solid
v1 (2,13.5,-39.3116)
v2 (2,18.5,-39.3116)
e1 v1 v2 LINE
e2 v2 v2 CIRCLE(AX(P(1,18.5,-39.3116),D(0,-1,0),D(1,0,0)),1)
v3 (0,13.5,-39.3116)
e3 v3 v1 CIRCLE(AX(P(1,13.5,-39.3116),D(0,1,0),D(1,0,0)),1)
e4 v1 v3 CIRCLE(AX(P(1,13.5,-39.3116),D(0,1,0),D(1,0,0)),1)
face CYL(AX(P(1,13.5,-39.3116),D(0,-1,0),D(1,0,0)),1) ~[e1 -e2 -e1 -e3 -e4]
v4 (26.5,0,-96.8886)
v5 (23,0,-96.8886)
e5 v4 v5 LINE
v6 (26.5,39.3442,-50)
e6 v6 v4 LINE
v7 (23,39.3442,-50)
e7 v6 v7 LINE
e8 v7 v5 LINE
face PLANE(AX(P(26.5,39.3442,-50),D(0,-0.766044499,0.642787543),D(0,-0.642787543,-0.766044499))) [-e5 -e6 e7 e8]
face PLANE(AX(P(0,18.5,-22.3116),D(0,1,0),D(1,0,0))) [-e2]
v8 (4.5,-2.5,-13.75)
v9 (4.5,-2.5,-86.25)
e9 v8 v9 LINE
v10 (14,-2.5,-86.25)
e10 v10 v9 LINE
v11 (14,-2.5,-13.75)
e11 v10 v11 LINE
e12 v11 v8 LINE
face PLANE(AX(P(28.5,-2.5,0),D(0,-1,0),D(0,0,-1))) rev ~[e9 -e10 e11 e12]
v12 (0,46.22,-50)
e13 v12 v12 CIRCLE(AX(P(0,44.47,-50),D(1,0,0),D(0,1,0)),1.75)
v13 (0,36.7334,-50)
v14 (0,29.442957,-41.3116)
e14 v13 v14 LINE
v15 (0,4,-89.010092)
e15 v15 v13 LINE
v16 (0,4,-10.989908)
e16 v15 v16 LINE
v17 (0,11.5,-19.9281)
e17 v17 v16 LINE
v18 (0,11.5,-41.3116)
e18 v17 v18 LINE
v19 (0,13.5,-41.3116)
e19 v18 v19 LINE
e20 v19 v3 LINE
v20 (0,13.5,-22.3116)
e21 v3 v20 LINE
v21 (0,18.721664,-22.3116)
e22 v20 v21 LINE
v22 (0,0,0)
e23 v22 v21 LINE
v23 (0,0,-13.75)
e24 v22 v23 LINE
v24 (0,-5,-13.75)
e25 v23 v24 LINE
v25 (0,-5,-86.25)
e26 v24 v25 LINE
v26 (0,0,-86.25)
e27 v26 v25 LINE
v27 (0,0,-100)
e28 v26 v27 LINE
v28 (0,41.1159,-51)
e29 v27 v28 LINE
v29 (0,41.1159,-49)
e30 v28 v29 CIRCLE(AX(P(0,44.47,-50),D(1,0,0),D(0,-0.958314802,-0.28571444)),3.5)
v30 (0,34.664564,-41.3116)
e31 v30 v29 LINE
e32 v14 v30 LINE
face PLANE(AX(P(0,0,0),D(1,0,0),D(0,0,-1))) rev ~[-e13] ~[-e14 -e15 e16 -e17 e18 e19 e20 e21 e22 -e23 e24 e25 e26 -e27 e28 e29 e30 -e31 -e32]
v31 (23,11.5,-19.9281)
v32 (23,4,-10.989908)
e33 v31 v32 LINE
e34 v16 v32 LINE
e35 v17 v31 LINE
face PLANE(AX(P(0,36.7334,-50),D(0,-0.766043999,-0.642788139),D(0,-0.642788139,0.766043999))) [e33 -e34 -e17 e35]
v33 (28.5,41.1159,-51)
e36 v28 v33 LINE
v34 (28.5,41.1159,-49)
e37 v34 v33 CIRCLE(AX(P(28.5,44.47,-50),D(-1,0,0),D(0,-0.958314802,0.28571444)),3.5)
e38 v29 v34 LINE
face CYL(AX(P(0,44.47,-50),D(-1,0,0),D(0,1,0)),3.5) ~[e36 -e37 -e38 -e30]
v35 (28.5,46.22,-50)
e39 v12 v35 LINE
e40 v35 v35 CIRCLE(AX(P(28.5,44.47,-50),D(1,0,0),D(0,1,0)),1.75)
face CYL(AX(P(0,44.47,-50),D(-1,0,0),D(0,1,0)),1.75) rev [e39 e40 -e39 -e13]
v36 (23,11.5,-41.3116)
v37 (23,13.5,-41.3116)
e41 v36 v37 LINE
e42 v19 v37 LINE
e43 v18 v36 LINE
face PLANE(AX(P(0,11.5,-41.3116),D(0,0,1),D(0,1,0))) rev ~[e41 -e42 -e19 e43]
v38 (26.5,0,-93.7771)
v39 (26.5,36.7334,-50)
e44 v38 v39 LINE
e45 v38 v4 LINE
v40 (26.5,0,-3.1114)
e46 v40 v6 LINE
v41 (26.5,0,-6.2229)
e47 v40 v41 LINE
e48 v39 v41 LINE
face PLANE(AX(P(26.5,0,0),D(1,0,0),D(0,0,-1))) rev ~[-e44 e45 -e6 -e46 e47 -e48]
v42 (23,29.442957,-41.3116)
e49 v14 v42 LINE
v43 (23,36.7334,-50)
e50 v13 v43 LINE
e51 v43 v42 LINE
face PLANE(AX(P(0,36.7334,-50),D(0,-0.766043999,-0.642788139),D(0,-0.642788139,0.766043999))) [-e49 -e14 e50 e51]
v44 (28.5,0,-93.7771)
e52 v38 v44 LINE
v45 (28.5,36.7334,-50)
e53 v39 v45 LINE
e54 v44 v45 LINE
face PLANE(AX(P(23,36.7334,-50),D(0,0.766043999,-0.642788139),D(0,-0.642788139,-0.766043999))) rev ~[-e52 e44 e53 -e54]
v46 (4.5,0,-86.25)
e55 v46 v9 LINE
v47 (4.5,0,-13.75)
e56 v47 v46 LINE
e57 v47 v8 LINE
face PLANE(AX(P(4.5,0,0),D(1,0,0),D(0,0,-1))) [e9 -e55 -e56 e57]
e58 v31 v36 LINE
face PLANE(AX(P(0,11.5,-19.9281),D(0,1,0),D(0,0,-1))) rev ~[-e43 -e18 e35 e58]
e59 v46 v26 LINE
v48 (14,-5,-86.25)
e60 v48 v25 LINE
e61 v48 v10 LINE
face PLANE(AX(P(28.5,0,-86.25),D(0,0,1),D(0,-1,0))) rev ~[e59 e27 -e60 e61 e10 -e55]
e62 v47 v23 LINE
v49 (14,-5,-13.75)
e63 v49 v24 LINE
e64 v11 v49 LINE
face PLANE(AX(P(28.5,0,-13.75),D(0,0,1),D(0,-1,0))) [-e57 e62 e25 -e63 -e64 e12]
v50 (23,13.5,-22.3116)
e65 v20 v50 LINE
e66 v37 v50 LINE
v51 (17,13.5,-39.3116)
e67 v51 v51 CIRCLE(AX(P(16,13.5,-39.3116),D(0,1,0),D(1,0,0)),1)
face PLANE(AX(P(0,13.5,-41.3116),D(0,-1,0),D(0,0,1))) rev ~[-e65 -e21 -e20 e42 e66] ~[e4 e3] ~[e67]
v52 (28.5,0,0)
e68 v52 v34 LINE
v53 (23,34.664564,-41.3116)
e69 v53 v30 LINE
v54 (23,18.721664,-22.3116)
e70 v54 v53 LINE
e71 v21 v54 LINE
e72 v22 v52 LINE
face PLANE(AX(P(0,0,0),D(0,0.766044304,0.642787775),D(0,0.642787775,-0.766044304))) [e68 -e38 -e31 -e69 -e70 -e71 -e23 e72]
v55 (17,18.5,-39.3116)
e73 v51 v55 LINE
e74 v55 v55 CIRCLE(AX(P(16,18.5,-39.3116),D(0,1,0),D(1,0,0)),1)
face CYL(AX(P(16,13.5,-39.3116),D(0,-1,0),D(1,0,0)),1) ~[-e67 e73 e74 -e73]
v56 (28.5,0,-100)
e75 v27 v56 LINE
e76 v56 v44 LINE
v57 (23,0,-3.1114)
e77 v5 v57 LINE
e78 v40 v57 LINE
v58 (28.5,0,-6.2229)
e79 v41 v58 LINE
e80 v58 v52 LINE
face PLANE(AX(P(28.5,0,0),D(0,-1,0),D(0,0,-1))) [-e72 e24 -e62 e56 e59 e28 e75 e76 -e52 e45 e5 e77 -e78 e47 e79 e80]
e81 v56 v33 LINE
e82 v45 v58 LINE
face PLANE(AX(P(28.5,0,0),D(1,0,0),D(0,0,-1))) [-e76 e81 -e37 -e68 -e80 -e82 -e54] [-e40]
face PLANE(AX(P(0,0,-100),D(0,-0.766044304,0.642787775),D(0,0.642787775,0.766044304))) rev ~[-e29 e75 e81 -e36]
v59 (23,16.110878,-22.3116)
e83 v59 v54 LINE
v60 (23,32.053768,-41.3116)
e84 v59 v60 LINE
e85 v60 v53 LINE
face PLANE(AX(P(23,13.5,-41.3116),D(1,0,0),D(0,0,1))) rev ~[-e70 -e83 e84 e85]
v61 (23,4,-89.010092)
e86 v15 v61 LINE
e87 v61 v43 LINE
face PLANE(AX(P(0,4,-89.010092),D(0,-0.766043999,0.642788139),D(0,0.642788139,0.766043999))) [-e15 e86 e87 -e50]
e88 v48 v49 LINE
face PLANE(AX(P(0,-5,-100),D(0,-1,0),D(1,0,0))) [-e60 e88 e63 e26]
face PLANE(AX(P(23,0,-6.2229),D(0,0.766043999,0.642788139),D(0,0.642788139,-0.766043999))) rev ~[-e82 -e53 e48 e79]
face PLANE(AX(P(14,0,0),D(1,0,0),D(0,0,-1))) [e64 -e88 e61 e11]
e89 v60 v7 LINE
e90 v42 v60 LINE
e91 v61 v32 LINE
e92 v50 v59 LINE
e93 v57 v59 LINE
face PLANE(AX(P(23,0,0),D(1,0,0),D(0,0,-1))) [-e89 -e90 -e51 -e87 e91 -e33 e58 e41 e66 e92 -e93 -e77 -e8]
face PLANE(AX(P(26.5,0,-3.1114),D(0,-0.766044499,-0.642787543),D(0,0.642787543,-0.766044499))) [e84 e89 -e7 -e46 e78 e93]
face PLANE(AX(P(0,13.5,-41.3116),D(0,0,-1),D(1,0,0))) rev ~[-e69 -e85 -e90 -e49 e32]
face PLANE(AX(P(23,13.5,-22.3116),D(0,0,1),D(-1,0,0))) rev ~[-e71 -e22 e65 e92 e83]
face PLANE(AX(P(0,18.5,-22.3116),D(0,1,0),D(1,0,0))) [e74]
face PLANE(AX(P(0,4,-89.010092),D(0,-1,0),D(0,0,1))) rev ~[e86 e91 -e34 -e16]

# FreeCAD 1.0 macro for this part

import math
import FreeCAD as App
import Part
import Sketcher
from FreeCAD import Vector
Q = App.Units.Quantity


def add_polygon(sketch, points):
    """Adds a closed chain of lines whose ends are joined by coincident constraints."""
    first, n = sketch.GeometryCount, len(points)
    for a, b in zip(points, points[1:] + points[:1]):
        sketch.addGeometry(Part.LineSegment(App.Vector(*a, 0), App.Vector(*b, 0)), False)
    for i in range(n):
        sketch.addConstraint(Sketcher.Constraint("Coincident", first + i, 2, first + (i + 1) % n, 1))

doc = App.newDocument("Part")
body = doc.addObject("PartDesign::Body", "Body")

# Sketch on YZ plane
sketch1 = body.newObject("Sketcher::SketchObject", "Sketch")
sketch1.AttachmentSupport = (doc.getObject("YZ_Plane"), [""])
sketch1.MapMode = "FlatFace"
sketch1.addGeometry([
    Part.LineSegment(Vector(41.1, -49, 0), Vector(0, 0, 0)),  # 0
    Part.LineSegment(Vector(0, 0, 0), Vector(0, -100, 0)),  # 1
    Part.LineSegment(Vector(0, -100, 0), Vector(41.1, -51, 0)),  # 2
    Part.ArcOfCircle(Part.Circle(Vector(44.5, -50, 0), Vector(0, 0, 1), 3.5), math.radians(-163), math.radians(163)),  # 3
    Part.Circle(Vector(44.5, -50, 0), Vector(0, 0, 1), 1.8),  # 4
], False)
sketch1.addConstraint([
    Sketcher.Constraint("Coincident", 0, 2, 1, 1),
    Sketcher.Constraint("Coincident", 1, 2, 2, 1),
    Sketcher.Constraint("Coincident", 2, 2, 3, 1),
    Sketcher.Constraint("Coincident", 3, 2, 0, 1),
    Sketcher.Constraint("Vertical", 1),
    Sketcher.Constraint("Coincident", 0, 2, -1, 1),
    Sketcher.Constraint("Coincident", 4, 3, 3, 3),
    Sketcher.Constraint("Vertical", 2, 2, 3, 2),
    Sketcher.Constraint("Equal", 0, 2),
    Sketcher.Constraint("Diameter", 4, Q("3.5 mm")),
    Sketcher.Constraint("Radius", 3, Q("3.5 mm")),
    Sketcher.Constraint("DistanceY", 1, 2, 1, 1, Q("100 mm")),
    Sketcher.Constraint("DistanceY", 2, 2, 3, 2, Q("2 mm")),
    Sketcher.Constraint("Angle", 0, Q("130 deg")),
])
pad1 = body.newObject("PartDesign::Pad", "Pad")
pad1.Profile = sketch1
pad1.Length = 28.5

# Sketch on XZ plane
sketch2 = body.newObject("Sketcher::SketchObject", "Sketch001")
sketch2.AttachmentSupport = (doc.getObject("XZ_Plane"), [""])
sketch2.MapMode = "FlatFace"
add_polygon(sketch2, [(28, 0), (0, 0), (0, -100), (28, -100)])  # lines 0-3
sketch2.addConstraint([
    Sketcher.Constraint("Horizontal", 0),
    Sketcher.Constraint("Vertical", 1),
    Sketcher.Constraint("Horizontal", 2),
    Sketcher.Constraint("Vertical", 3),
    Sketcher.Constraint("Coincident", 0, 2, -1, 1),
    Sketcher.Constraint("DistanceY", 1, 2, 1, 1, Q("100 mm")),
    Sketcher.Constraint("DistanceX", 0, 2, 0, 1, Q("28.5 mm")),
])
pad2 = body.newObject("PartDesign::Pad", "Pad001")
pad2.Profile = sketch2
pad2.Length = 5

# Sketch on YZ plane
sketch3 = body.newObject("Sketcher::SketchObject", "Sketch002")
sketch3.AttachmentSupport = (doc.getObject("YZ_Plane"), [""])
sketch3.MapMode = "FlatFace"
sketch3.AttachmentOffset = App.Placement(Vector(0, 0, 28.5), App.Rotation())
add_polygon(sketch3, [(-2.5, -100), (0, -100), (0, 0), (-2.5, 0)])  # lines 0-3
sketch3.addConstraint([
    Sketcher.Constraint("Horizontal", 0),
    Sketcher.Constraint("Vertical", 1),
    Sketcher.Constraint("Horizontal", 2),
    Sketcher.Constraint("Vertical", 3),
    Sketcher.Constraint("Coincident", 1, 2, -1, 1),
    Sketcher.Constraint("DistanceY", 1, 1, 1, 2, Q("100 mm")),
    Sketcher.Constraint("DistanceX", 0, 1, 0, 2, Q("2.5 mm")),
])
pocket1 = body.newObject("PartDesign::Pocket", "Pocket")
pocket1.Profile = sketch3
pocket1.Length = 24

# Sketch on YZ plane
sketch4 = body.newObject("Sketcher::SketchObject", "Sketch003")
sketch4.AttachmentSupport = (doc.getObject("YZ_Plane"), [""])
sketch4.MapMode = "FlatFace"
sketch4.AttachmentOffset = App.Placement(Vector(0, 0, 28.5), App.Rotation())
add_polygon(sketch4, [(0, -14), (0, 0), (-5, 0), (-5, -14)])  # lines 0-3
add_polygon(sketch4, [(0, -100), (0, -86), (-5, -86), (-5, -100)])  # lines 4-7
sketch4.addConstraint([
    Sketcher.Constraint("Vertical", 0),
    Sketcher.Constraint("Horizontal", 1),
    Sketcher.Constraint("Vertical", 2),
    Sketcher.Constraint("Horizontal", 3),
    Sketcher.Constraint("Vertical", 4),
    Sketcher.Constraint("Horizontal", 5),
    Sketcher.Constraint("Vertical", 6),
    Sketcher.Constraint("Horizontal", 7),
    Sketcher.Constraint("Coincident", 0, 2, -1, 1),
    Sketcher.Constraint("PointOnObject", 4, 2, -2),
    Sketcher.Constraint("Vertical", 2, 2, 5, 2),
    Sketcher.Constraint("Equal", 2, 4),
    Sketcher.Constraint("DistanceY", 4, 2, 3, 2, Q("72.5 mm")),
    Sketcher.Constraint("DistanceX", 1, 2, 1, 1, Q("5 mm")),
    Sketcher.Constraint("DistanceY", 6, 2, -1, 1, Q("100 mm")),
])
pocket2 = body.newObject("PartDesign::Pocket", "Pocket001")
pocket2.Profile = sketch4
pocket2.Type = "ThroughAll"

# Sketch on YZ plane
sketch5 = body.newObject("Sketcher::SketchObject", "Sketch004")
sketch5.AttachmentSupport = (doc.getObject("YZ_Plane"), [""])
sketch5.MapMode = "FlatFace"
sketch5.AttachmentOffset = App.Placement(Vector(0, 0, 28.5), App.Rotation())
add_polygon(sketch5, [(-5, -13.8), (-5, -86.2), (-2.5, -86.2), (-2.5, -13.8)])  # lines 0-3
sketch5.addConstraint([
    Sketcher.Constraint("Vertical", 0),
    Sketcher.Constraint("Horizontal", 1),
    Sketcher.Constraint("Vertical", 2),
    Sketcher.Constraint("Horizontal", 3),
    Sketcher.Constraint("DistanceX", 1, 1, 1, 2, Q("2.5 mm")),
    Sketcher.Constraint("DistanceY", 0, 2, 0, 1, Q("72.5 mm")),
    Sketcher.Constraint("DistanceX", 0, 2, -1, 1, Q("5 mm")),
    Sketcher.Constraint("DistanceY", 0, 2, -1, 1, Q("86.25 mm")),
])
pocket3 = body.newObject("PartDesign::Pocket", "Pocket002")
pocket3.Profile = sketch5
pocket3.Length = 14.5

# Sketch on YZ plane
sketch6 = body.newObject("Sketcher::SketchObject", "Sketch005")
sketch6.AttachmentSupport = (doc.getObject("YZ_Plane"), [""])
sketch6.MapMode = "FlatFace"
sketch6.AttachmentOffset = App.Placement(Vector(0, 0, 26.5), App.Rotation())
add_polygon(sketch6, [(0, -3), (0, -97), (39, -50)])  # lines 0-2
sketch6.addConstraint([
    Sketcher.Constraint("Vertical", 0),
    Sketcher.Constraint("PointOnObject", 0, 2, -2),
    Sketcher.Constraint("Equal", 1, 2),
    Sketcher.Constraint("Angle", 1, Q("50 deg")),
    Sketcher.Constraint("DistanceY", 1, 2, -1, 1, Q("50 mm")),
    Sketcher.Constraint("DistanceY", 0, 2, 0, 1, Q("93.7772 mm")),
])
pocket4 = body.newObject("PartDesign::Pocket", "Pocket003")
pocket4.Profile = sketch6
pocket4.Length = 3.5

# Sketch on YZ plane
sketch7 = body.newObject("Sketcher::SketchObject", "Sketch006")
sketch7.AttachmentSupport = (doc.getObject("YZ_Plane"), [""])
sketch7.MapMode = "FlatFace"
sketch7.AttachmentOffset = App.Placement(Vector(0, 0, 23), App.Rotation())
add_polygon(sketch7, [(0, -6), (0, -94), (37, -50)])  # lines 0-2
sketch7.addConstraint([
    Sketcher.Constraint("Vertical", 0),
    Sketcher.Constraint("PointOnObject", 0, 2, -2),
    Sketcher.Constraint("Equal", 1, 2),
    Sketcher.Constraint("Angle", 1, Q("50 deg")),
    Sketcher.Constraint("DistanceY", 1, 2, -1, 1, Q("50 mm")),
    Sketcher.Constraint("Distance", 1, Q("57.147 mm")),
])
pocket5 = body.newObject("PartDesign::Pocket", "Pocket004")
pocket5.Profile = sketch7
pocket5.Type = "ThroughAll"
pocket5.Reversed = True

# Sketch on YZ plane
sketch8 = body.newObject("Sketcher::SketchObject", "Sketch007")
sketch8.AttachmentSupport = (doc.getObject("YZ_Plane"), [""])
sketch8.MapMode = "FlatFace"
add_polygon(sketch8, [(37, -50), (4, -89), (4, -11)])  # lines 0-2
sketch8.addConstraint([
    Sketcher.Constraint("Vertical", 1),
    Sketcher.Constraint("Equal", 0, 2),
    Sketcher.Constraint("DistanceX", -1, 1, 0, 2, Q("4 mm")),
    Sketcher.Constraint("Angle", 0, Q("-130 deg")),
    Sketcher.Constraint("DistanceY", 2, 2, -1, 1, Q("50 mm")),
    Sketcher.Constraint("DistanceY", 0, 2, -1, 1, Q("89.01 mm")),
])
pocket6 = body.newObject("PartDesign::Pocket", "Pocket005")
pocket6.Profile = sketch8
pocket6.Length = 23
pocket6.Reversed = True

# Sketch on YZ plane
sketch9 = body.newObject("Sketcher::SketchObject", "Sketch008")
sketch9.AttachmentSupport = (doc.getObject("YZ_Plane"), [""])
sketch9.MapMode = "FlatFace"
add_polygon(sketch9, [(11.5, -19.9), (13.5, -22.3), (13.5, -41.3), (11.5, -41.3)])  # lines 0-3
sketch9.addConstraint([
    Sketcher.Constraint("Vertical", 1),
    Sketcher.Constraint("Horizontal", 2),
    Sketcher.Constraint("Vertical", 3),
    Sketcher.Constraint("DistanceX", 2, 2, 2, 1, Q("2 mm")),
    Sketcher.Constraint("DistanceY", 1, 2, 1, 1, Q("19 mm")),
    Sketcher.Constraint("Angle", 0, Q("-50 deg")),
    Sketcher.Constraint("DistanceX", -1, 1, 0, 2, Q("13.5 mm")),
    Sketcher.Constraint("DistanceY", 3, 2, -1, 1, Q("19.928 mm")),
])
pad3 = body.newObject("PartDesign::Pad", "Pad002")
pad3.Profile = sketch9
pad3.Length = 23

# Sketch on XZ plane
sketch10 = body.newObject("Sketcher::SketchObject", "Sketch009")
sketch10.AttachmentSupport = (doc.getObject("XZ_Plane"), [""])
sketch10.MapMode = "FlatFace"
sketch10.AttachmentOffset = App.Placement(Vector(0, 0, -13.5), App.Rotation())
add_polygon(sketch10, [(23, -22), (23, -41), (0, -41), (0, -22)])  # lines 0-3
sketch10.addConstraint([
    Sketcher.Constraint("Vertical", 0),
    Sketcher.Constraint("Horizontal", 1),
    Sketcher.Constraint("Vertical", 2),
    Sketcher.Constraint("Horizontal", 3),
    Sketcher.Constraint("PointOnObject", 1, 2, -2),
    Sketcher.Constraint("DistanceX", 1, 2, 1, 1, Q("23 mm")),
    Sketcher.Constraint("DistanceY", 0, 2, 0, 1, Q("19 mm")),
    Sketcher.Constraint("DistanceY", 0, 2, -1, 1, Q("41.3116 mm")),
])
pocket7 = body.newObject("PartDesign::Pocket", "Pocket006")
pocket7.Profile = sketch10
pocket7.Type = "ThroughAll"

# Sketch on XZ plane
sketch11 = body.newObject("Sketcher::SketchObject", "Sketch010")
sketch11.AttachmentSupport = (doc.getObject("XZ_Plane"), [""])
sketch11.MapMode = "FlatFace"
sketch11.AttachmentOffset = App.Placement(Vector(0, 0, -13.5), App.Rotation())
sketch11.addGeometry([
    Part.Circle(Vector(1, -39.3, 0), Vector(0, 0, 1), 1),
    Part.Circle(Vector(16, -39.3, 0), Vector(0, 0, 1), 1),
], False)
sketch11.addConstraint([
    Sketcher.Constraint("Equal", 0, 1),
    Sketcher.Constraint("Horizontal", 0, 3, 1, 3),
    Sketcher.Constraint("Diameter", 0, Q("2 mm")),
    Sketcher.Constraint("DistanceX", -1, 1, 0, 3, Q("1 mm")),
    Sketcher.Constraint("DistanceX", 0, 3, 1, 3, Q("15 mm")),
    Sketcher.Constraint("DistanceY", 0, 3, -1, 1, Q("39.3116 mm")),
])
pad4 = body.newObject("PartDesign::Pad", "Pad003")
pad4.Profile = sketch11
pad4.Length = 5
pad4.Reversed = True

doc.recompute()
